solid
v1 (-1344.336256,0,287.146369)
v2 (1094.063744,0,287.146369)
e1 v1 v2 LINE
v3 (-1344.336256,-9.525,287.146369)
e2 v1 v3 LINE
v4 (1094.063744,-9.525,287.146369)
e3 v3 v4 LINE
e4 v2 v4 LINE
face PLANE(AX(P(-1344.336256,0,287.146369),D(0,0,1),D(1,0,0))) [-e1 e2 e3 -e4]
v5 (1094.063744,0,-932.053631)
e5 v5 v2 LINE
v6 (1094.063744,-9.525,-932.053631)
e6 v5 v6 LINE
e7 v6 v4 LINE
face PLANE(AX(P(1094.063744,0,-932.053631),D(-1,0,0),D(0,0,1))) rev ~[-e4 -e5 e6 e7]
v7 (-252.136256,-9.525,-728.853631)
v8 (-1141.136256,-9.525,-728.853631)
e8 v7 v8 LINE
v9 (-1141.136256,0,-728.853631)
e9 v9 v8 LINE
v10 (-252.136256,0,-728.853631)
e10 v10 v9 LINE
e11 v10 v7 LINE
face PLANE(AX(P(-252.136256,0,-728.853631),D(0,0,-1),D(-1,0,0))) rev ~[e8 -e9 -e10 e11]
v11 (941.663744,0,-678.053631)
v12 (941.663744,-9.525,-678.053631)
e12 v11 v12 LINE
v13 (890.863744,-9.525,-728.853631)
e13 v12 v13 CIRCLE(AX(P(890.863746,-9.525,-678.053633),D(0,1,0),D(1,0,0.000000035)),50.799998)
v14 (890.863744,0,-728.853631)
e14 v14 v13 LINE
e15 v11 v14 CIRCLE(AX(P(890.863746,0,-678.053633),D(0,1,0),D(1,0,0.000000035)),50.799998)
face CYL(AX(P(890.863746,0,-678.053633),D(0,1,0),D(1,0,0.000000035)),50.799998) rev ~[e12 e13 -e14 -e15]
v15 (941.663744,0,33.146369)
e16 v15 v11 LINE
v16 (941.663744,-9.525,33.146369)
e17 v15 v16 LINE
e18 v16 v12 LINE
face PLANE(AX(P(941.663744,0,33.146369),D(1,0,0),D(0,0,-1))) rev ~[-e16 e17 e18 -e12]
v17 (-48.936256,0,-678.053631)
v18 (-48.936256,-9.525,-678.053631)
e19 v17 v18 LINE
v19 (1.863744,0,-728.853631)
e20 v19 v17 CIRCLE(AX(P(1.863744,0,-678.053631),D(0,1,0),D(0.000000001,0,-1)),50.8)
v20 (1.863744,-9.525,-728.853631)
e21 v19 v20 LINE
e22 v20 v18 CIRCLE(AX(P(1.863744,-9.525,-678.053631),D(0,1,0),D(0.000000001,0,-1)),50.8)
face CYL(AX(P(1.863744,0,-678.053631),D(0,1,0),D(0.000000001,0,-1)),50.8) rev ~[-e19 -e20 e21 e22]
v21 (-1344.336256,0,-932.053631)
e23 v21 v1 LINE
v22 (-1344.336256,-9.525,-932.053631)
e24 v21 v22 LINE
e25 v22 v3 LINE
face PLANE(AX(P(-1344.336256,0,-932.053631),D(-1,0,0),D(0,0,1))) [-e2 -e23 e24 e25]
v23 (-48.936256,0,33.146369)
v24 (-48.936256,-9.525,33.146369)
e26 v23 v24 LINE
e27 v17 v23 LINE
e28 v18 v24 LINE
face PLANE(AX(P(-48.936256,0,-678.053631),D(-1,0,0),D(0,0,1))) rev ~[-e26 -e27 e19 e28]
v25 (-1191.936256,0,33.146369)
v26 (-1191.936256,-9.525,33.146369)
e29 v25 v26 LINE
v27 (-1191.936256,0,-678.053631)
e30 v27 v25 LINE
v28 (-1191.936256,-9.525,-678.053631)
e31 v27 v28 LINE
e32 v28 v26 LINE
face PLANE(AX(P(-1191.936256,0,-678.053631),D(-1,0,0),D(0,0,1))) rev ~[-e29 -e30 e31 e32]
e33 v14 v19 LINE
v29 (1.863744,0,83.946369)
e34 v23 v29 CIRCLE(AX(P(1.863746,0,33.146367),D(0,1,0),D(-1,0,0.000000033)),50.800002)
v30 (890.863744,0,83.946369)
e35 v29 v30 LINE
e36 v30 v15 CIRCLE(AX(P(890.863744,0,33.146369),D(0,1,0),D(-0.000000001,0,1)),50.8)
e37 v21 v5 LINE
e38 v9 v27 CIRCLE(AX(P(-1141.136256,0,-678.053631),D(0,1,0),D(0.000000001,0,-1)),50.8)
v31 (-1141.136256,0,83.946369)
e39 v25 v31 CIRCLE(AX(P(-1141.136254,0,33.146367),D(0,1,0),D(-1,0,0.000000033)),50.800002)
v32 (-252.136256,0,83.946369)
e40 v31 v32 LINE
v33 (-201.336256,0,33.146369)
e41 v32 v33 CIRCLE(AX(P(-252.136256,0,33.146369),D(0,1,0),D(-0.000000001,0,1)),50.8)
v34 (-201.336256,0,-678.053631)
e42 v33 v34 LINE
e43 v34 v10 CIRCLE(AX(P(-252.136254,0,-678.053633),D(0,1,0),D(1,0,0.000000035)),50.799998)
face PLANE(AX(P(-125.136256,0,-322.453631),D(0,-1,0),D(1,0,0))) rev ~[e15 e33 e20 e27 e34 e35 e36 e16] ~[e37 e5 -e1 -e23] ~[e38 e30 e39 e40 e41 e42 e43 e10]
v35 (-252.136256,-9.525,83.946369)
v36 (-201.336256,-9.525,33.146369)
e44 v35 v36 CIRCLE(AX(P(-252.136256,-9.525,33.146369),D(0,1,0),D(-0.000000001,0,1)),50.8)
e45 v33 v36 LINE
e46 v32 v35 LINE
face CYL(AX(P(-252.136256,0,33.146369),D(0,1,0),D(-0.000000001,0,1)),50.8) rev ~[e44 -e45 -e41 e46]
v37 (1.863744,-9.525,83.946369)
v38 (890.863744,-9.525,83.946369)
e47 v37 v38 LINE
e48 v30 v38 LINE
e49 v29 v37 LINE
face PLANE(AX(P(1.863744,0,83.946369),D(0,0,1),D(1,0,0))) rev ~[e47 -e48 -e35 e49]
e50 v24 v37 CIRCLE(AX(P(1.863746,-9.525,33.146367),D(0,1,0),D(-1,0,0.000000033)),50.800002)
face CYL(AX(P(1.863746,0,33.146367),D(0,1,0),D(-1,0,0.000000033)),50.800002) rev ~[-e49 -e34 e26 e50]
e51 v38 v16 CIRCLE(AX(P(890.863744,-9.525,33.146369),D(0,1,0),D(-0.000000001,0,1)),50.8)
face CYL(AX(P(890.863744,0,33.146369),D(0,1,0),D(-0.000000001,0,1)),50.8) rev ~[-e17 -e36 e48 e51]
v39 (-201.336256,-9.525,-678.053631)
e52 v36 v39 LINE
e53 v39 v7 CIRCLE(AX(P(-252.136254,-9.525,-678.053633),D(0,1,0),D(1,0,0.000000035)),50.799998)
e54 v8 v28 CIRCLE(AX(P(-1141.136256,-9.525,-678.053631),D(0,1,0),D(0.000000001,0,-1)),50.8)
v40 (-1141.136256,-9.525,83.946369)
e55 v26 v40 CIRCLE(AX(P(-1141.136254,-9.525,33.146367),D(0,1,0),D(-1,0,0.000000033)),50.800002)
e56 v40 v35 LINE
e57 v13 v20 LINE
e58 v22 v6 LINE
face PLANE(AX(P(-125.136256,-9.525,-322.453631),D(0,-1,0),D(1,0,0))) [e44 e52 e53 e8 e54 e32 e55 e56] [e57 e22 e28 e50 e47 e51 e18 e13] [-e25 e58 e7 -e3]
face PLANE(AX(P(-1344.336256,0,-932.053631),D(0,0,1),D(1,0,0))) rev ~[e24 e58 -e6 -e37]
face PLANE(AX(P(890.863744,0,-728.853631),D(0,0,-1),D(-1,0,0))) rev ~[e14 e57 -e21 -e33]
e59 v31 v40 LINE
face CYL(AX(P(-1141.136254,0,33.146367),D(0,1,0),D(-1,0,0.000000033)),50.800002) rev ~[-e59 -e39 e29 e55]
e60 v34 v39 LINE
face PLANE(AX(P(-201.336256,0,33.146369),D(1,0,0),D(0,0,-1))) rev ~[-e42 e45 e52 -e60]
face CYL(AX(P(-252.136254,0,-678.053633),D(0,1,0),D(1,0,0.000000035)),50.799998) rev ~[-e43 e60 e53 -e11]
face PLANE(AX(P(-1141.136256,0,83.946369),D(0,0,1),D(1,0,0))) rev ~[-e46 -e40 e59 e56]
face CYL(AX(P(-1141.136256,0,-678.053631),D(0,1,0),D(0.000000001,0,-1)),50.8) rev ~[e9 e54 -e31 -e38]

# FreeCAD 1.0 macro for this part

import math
import FreeCAD as App
import Part
import Sketcher
Q = App.Units.Quantity

doc = App.newDocument("Part")
body = doc.addObject("PartDesign::Body", "Body")

# Sketch on XZ plane
sketch1 = doc.addObject("Sketcher::SketchObject", "Sketch")
body.addObject(sketch1)
sketch1.AttachmentSupport = (doc.XZ_Plane, [""])
sketch1.MapMode = "FlatFace"
sketch1.addGeometry([
    Part.LineSegment(App.Vector(-1344.336256, 287.146369, 0), App.Vector(-1344.336256, -932.053631, 0)),  # 0
    Part.LineSegment(App.Vector(-1344.336256, -932.053631, 0), App.Vector(1094.063744, -932.053631, 0)),  # 1
    Part.LineSegment(App.Vector(1094.063744, -932.053631, 0), App.Vector(1094.063744, 287.146369, 0)),  # 2
    Part.LineSegment(App.Vector(1094.063744, 287.146369, 0), App.Vector(-1344.336256, 287.146369, 0)),  # 3
    Part.LineSegment(App.Vector(-1191.936256, -678.053631, 0), App.Vector(-1191.936256, 33.146369, 0)),  # 4
    Part.ArcOfCircle(Part.Circle(App.Vector(-1141.136254, 33.146367, 0), App.Vector(0, 0, 1), 50.800002), math.radians(90.000002), math.radians(179.999998)),  # 5
    Part.LineSegment(App.Vector(-1141.136256, 83.946369, 0), App.Vector(-252.136256, 83.946369, 0)),  # 6
    Part.ArcOfCircle(Part.Circle(App.Vector(-252.136256, 33.146369, 0), App.Vector(0, 0, 1), 50.8), math.radians(0), math.radians(90)),  # 7
    Part.LineSegment(App.Vector(-201.336256, 33.146369, 0), App.Vector(-201.336256, -678.053631, 0)),  # 8
    Part.ArcOfCircle(Part.Circle(App.Vector(-252.136254, -678.053633, 0), App.Vector(0, 0, 1), 50.799998), math.radians(-90.000002), math.radians(0.000002)),  # 9
    Part.LineSegment(App.Vector(-252.136256, -728.853631, 0), App.Vector(-1141.136256, -728.853631, 0)),  # 10
    Part.ArcOfCircle(Part.Circle(App.Vector(-1141.136256, -678.053631, 0), App.Vector(0, 0, 1), 50.8), math.radians(180), math.radians(270)),  # 11
    Part.LineSegment(App.Vector(-48.936256, -678.053631, 0), App.Vector(-48.936256, 33.146369, 0)),  # 12
    Part.ArcOfCircle(Part.Circle(App.Vector(1.863746, 33.146367, 0), App.Vector(0, 0, 1), 50.800002), math.radians(90.000002), math.radians(179.999998)),  # 13
    Part.LineSegment(App.Vector(1.863744, 83.946369, 0), App.Vector(890.863744, 83.946369, 0)),  # 14
    Part.ArcOfCircle(Part.Circle(App.Vector(890.863744, 33.146369, 0), App.Vector(0, 0, 1), 50.8), math.radians(0), math.radians(90)),  # 15
    Part.LineSegment(App.Vector(941.663744, 33.146369, 0), App.Vector(941.663744, -678.053631, 0)),  # 16
    Part.ArcOfCircle(Part.Circle(App.Vector(890.863746, -678.053633, 0), App.Vector(0, 0, 1), 50.799998), math.radians(-90.000002), math.radians(0.000002)),  # 17
    Part.LineSegment(App.Vector(890.863744, -728.853631, 0), App.Vector(1.863744, -728.853631, 0)),  # 18
    Part.ArcOfCircle(Part.Circle(App.Vector(1.863744, -678.053631, 0), App.Vector(0, 0, 1), 50.8), math.radians(180), math.radians(270)),  # 19
], False)
sketch1.addConstraint([
    Sketcher.Constraint("Coincident", 0, 2, 1, 1),
    Sketcher.Constraint("Coincident", 1, 2, 2, 1),
    Sketcher.Constraint("Coincident", 2, 2, 3, 1),
    Sketcher.Constraint("Coincident", 3, 2, 0, 1),
    Sketcher.Constraint("Tangent", 4, 2, 5, 2),
    Sketcher.Constraint("Tangent", 5, 1, 6, 1),
    Sketcher.Constraint("Tangent", 6, 2, 7, 2),
    Sketcher.Constraint("Tangent", 7, 1, 8, 1),
    Sketcher.Constraint("Tangent", 8, 2, 9, 2),
    Sketcher.Constraint("Tangent", 9, 1, 10, 1),
    Sketcher.Constraint("Tangent", 10, 2, 11, 2),
    Sketcher.Constraint("Tangent", 11, 1, 4, 1),
    Sketcher.Constraint("Tangent", 12, 2, 13, 2),
    Sketcher.Constraint("Tangent", 13, 1, 14, 1),
    Sketcher.Constraint("Tangent", 14, 2, 15, 2),
    Sketcher.Constraint("Tangent", 15, 1, 16, 1),
    Sketcher.Constraint("Tangent", 16, 2, 17, 2),
    Sketcher.Constraint("Tangent", 17, 1, 18, 1),
    Sketcher.Constraint("Tangent", 18, 2, 19, 2),
    Sketcher.Constraint("Tangent", 19, 1, 12, 1),
    Sketcher.Constraint("Vertical", 0),
    Sketcher.Constraint("Horizontal", 1),
    Sketcher.Constraint("Vertical", 2),
    Sketcher.Constraint("Horizontal", 3),
    Sketcher.Constraint("Vertical", 4),
    Sketcher.Constraint("Horizontal", 6),
    Sketcher.Constraint("Vertical", 8),
    Sketcher.Constraint("Horizontal", 10),
    Sketcher.Constraint("Vertical", 12),
    Sketcher.Constraint("Horizontal", 14),
    Sketcher.Constraint("Vertical", 16),
    Sketcher.Constraint("Horizontal", 18),
    Sketcher.Constraint("Equal", 5, 7),
    Sketcher.Constraint("Equal", 7, 9),
    Sketcher.Constraint("Equal", 9, 11),
    Sketcher.Constraint("Equal", 11, 13),
    Sketcher.Constraint("Equal", 13, 15),
    Sketcher.Constraint("Equal", 15, 17),
    Sketcher.Constraint("Equal", 17, 19),
    Sketcher.Constraint("Horizontal", 7, 3, 13, 3),
    Sketcher.Constraint("Horizontal", 11, 3, 17, 3),
    Sketcher.Constraint("Equal", 10, 14),
    Sketcher.Constraint("Radius", 5, Q("2.0000001 in")),
    Sketcher.Constraint("DistanceX", 1, 1, 1, 2, Q("96 in")),
    Sketcher.Constraint("DistanceX", 6, 1, 6, 2, Q("35 in")),
    Sketcher.Constraint("DistanceY", 0, 2, 0, 1, Q("48 in")),
    Sketcher.Constraint("DistanceY", 4, 1, 4, 2, Q("28 in")),
    Sketcher.Constraint("DistanceX", 7, 3, 13, 3, Q("10.0000001 in")),
    Sketcher.Constraint("DistanceX", 0, 2, 11, 3, Q("8 in")),
    Sketcher.Constraint("DistanceY", 0, 2, 11, 3, Q("10 in")),
    Sketcher.Constraint("DistanceY", -1, 1, 7, 3, 33.146369),
    Sketcher.Constraint("DistanceX", 5, 3, -1, 1, 1141.136254),
])
pad1 = doc.addObject("PartDesign::Pad", "Pad")
body.addObject(pad1)
pad1.Profile = sketch1
pad1.Length = Q("0.375 in")

doc.recompute()
